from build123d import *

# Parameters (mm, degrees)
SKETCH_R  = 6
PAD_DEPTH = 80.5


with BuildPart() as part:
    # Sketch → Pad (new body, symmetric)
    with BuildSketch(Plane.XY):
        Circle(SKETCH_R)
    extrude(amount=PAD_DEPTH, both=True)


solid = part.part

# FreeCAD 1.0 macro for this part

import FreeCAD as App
import Part
import Sketcher
from FreeCAD import Vector
Q = App.Units.Quantity

doc = App.newDocument("Part")
body = doc.addObject("PartDesign::Body", "Body")

# Sketch on XY plane
sketch1 = doc.addObject("Sketcher::SketchObject", "Sketch")
body.addObject(sketch1)
sketch1.AttachmentSupport = (doc.XY_Plane, [""])
sketch1.MapMode = "FlatFace"
sketch1.addGeometry(Part.Circle(Vector(0, 0, 0), Vector(0, 0, 1), 6), False)
sketch1.addConstraint(Sketcher.Constraint("Coincident", 0, 3, -1, 1))
sketch1.addConstraint(Sketcher.Constraint("Diameter", 0, Q("12 mm")))
pad1 = doc.addObject("PartDesign::Pad", "Pad")
body.addObject(pad1)
pad1.Profile = sketch1
pad1.Length = 161
pad1.Midplane = True

doc.recompute()
